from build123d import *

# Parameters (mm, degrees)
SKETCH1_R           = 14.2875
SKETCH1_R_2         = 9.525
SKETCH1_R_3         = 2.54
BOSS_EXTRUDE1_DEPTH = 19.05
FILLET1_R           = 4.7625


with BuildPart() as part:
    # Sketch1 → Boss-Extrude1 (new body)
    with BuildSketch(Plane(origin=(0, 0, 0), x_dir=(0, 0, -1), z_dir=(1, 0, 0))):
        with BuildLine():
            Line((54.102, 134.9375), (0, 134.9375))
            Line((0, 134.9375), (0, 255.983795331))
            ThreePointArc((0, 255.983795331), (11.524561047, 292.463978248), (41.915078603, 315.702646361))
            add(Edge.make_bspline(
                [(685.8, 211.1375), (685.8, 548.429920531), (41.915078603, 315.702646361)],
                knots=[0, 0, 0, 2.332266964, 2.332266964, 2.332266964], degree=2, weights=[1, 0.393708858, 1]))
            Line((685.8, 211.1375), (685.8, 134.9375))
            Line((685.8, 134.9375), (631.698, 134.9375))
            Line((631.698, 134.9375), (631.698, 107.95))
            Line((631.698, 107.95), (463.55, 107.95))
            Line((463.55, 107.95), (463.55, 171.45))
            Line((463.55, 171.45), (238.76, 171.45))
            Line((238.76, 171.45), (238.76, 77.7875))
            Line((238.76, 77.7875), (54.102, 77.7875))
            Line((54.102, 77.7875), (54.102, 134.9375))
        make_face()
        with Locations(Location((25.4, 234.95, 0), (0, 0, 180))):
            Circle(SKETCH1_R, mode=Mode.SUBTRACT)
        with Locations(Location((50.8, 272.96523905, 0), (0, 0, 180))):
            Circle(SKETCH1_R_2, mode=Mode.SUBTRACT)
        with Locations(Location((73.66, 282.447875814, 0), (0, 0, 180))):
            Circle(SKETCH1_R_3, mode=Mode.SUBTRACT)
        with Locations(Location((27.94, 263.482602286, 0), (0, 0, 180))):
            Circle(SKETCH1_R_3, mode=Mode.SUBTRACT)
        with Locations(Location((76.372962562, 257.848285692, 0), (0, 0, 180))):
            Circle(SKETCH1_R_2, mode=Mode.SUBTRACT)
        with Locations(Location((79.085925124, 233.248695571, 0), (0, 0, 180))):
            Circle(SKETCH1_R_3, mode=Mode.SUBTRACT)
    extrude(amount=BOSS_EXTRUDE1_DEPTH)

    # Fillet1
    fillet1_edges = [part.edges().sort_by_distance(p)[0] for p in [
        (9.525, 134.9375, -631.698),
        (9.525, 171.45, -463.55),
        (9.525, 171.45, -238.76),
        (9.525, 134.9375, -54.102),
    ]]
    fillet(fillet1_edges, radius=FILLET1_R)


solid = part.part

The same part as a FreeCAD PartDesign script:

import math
import FreeCAD as App
import Part
import Sketcher

V = App.Vector
Q = App.Units.Quantity


def edges_at(feature, points):
    """Names of the edges that pass closest to the given points."""
    edges = feature.Shape.Edges
    near = lambda p: min(range(len(edges)), key=lambda i: edges[i].distToShape(Part.Vertex(*p))[0])
    return sorted({f"Edge{near(p) + 1}" for p in points})

doc = App.newDocument("Part")
body = doc.addObject("PartDesign::Body", "Body")

sketch1 = body.newObject("Sketcher::SketchObject", "Sketch")
sketch1.AttachmentSupport = (doc.getObject("YZ_Plane"), [""])
sketch1.MapMode = "FlatFace"
sketch1.addGeometry([
    Part.LineSegment(V(134.9375, 0, 0), V(134.9375, -54.102, 0)),
    Part.LineSegment(V(134.9375, -54.102, 0), V(77.7875, -54.102, 0)),
    Part.LineSegment(V(77.7875, -54.102, 0), V(77.7875, -238.76, 0)),
    Part.LineSegment(V(77.7875, -238.76, 0), V(171.45, -238.76, 0)),
    Part.LineSegment(V(171.45, -238.76, 0), V(171.45, -463.55, 0)),
    Part.LineSegment(V(171.45, -463.55, 0), V(107.95, -463.55, 0)),
    Part.LineSegment(V(107.95, -463.55, 0), V(107.95, -631.698, 0)),
    Part.LineSegment(V(107.95, -631.698, 0), V(134.9375, -631.698, 0)),
    Part.LineSegment(V(134.9375, -631.698, 0), V(134.9375, -685.8, 0)),
    Part.LineSegment(V(134.9375, -685.8, 0), V(211.1375, -685.8, 0)),
    Part.BSplineCurve([V(211.1375, -685.8, 0), V(548.429921, -685.8, 0), V(315.702646, -41.915079, 0)], [3, 3], [0, 2.332266964], False, 2, [1, 0.393708858, 1], False),
    Part.ArcOfCircle(Part.Circle(V(255.983795, -63.5, 0), V(0, 0, 1), 63.5), math.radians(19.872001), math.radians(90)),
    Part.LineSegment(V(255.983795, 0, 0), V(134.9375, 0, 0)),
    Part.Circle(V(233.248696, -79.085925, 0), V(0, 0, 1), 2.54),
    Part.Circle(V(234.95, -25.4, 0), V(0, 0, 1), 14.2875),
    Part.Circle(V(257.848286, -76.372963, 0), V(0, 0, 1), 9.525),
    Part.Circle(V(282.447876, -73.66, 0), V(0, 0, 1), 2.54),
    Part.Circle(V(272.965239, -50.8, 0), V(0, 0, 1), 9.525),
    Part.Circle(V(263.482602, -27.94, 0), V(0, 0, 1), 2.54),
], False)
sketch1.addConstraint([
    Sketcher.Constraint("Block", 10),
    Sketcher.Constraint("Coincident", 0, 2, 1, 1),
    Sketcher.Constraint("Coincident", 1, 2, 2, 1),
    Sketcher.Constraint("Coincident", 2, 2, 3, 1),
    Sketcher.Constraint("Coincident", 3, 2, 4, 1),
    Sketcher.Constraint("Coincident", 4, 2, 5, 1),
    Sketcher.Constraint("Coincident", 5, 2, 6, 1),
    Sketcher.Constraint("Coincident", 6, 2, 7, 1),
    Sketcher.Constraint("Coincident", 7, 2, 8, 1),
    Sketcher.Constraint("Coincident", 8, 2, 9, 1),
    Sketcher.Constraint("Coincident", 9, 2, 10, 1),
    Sketcher.Constraint("Coincident", 10, 2, 11, 1),
    Sketcher.Constraint("Tangent", 11, 2, 12, 1),
    Sketcher.Constraint("Coincident", 12, 2, 0, 1),
    Sketcher.Constraint("Vertical", 0),
    Sketcher.Constraint("Horizontal", 1),
    Sketcher.Constraint("Vertical", 2),
    Sketcher.Constraint("Horizontal", 3),
    Sketcher.Constraint("Vertical", 4),
    Sketcher.Constraint("Horizontal", 5),
    Sketcher.Constraint("Vertical", 6),
    Sketcher.Constraint("Horizontal", 7),
    Sketcher.Constraint("Vertical", 8),
    Sketcher.Constraint("Horizontal", 9),
    Sketcher.Constraint("Horizontal", 12),
    Sketcher.Constraint("Equal", 13, 16),
    Sketcher.Constraint("Equal", 15, 17),
    Sketcher.Constraint("Equal", 16, 18),
    Sketcher.Constraint("PointOnObject", 11, 2, -1),
    Sketcher.Constraint("Vertical", 0, 2, 7, 2),
    Sketcher.Constraint("Equal", 0, 8),
    Sketcher.Constraint("Diameter", 13, Q("0.2 in")),
    Sketcher.Constraint("Radius", 11, Q("2.5 in")),
    Sketcher.Constraint("Diameter", 15, Q("0.75 in")),
    Sketcher.Constraint("DistanceX", 9, 1, 9, 2, Q("3 in")),
    Sketcher.Constraint("Diameter", 14, Q("1.125 in")),
    Sketcher.Constraint("DistanceX", 5, 2, 5, 1, Q("2.5 in")),
    Sketcher.Constraint("DistanceY", 14, 3, -1, 1, Q("1 in")),
    Sketcher.Constraint("DistanceY", 17, 3, -1, 1, Q("2 in")),
    Sketcher.Constraint("DistanceX", 1, 2, 1, 1, Q("2.25 in")),
    Sketcher.Constraint("DistanceY", 0, 2, 0, 1, Q("2.13 in")),
    Sketcher.Constraint("DistanceY", 2, 2, 2, 1, Q("7.27 in")),
    Sketcher.Constraint("DistanceY", 4, 2, 4, 1, Q("8.85 in")),
    Sketcher.Constraint("DistanceY", 16, 3, -1, 1, Q("2.9 in")),
    Sketcher.Constraint("DistanceY", 18, 3, -1, 1, Q("1.1 in")),
    Sketcher.Constraint("DistanceX", 3, 1, 3, 2, Q("3.6875 in")),
    Sketcher.Constraint("DistanceX", -1, 1, 14, 3, Q("9.25 in")),
    Sketcher.Constraint("DistanceX", 13, 3, 11, 3, Q("22.7351 mm")),
    Sketcher.Constraint("DistanceX", -1, 1, 17, 3, Q("272.965239 mm")),
    Sketcher.Constraint("DistanceX", 11, 3, 15, 3, Q("1.86449 mm")),
    Sketcher.Constraint("DistanceX", 15, 3, 16, 3, Q("24.59959 mm")),
    Sketcher.Constraint("DistanceY", 13, 3, -1, 1, Q("79.085925 mm")),
    Sketcher.Constraint("DistanceY", 15, 3, -1, 1, Q("76.372963 mm")),
    Sketcher.Constraint("DistanceX", -1, 1, 18, 3, Q("263.482602 mm")),
])
pad1 = body.newObject("PartDesign::Pad", "Pad")
pad1.Profile = sketch1
pad1.Length = Q("0.75 in")
doc.recompute()

fillet = body.newObject("PartDesign::Fillet", "Fillet")
fillet.Base = (pad1, edges_at(pad1, [
    (9.525, 134.938, -631.698),
    (9.525, 171.45, -463.55),
    (9.525, 171.45, -238.76),
    (9.525, 134.938, -54.102),
]))
fillet.Radius = Q("0.1875 in")

doc.recompute()
